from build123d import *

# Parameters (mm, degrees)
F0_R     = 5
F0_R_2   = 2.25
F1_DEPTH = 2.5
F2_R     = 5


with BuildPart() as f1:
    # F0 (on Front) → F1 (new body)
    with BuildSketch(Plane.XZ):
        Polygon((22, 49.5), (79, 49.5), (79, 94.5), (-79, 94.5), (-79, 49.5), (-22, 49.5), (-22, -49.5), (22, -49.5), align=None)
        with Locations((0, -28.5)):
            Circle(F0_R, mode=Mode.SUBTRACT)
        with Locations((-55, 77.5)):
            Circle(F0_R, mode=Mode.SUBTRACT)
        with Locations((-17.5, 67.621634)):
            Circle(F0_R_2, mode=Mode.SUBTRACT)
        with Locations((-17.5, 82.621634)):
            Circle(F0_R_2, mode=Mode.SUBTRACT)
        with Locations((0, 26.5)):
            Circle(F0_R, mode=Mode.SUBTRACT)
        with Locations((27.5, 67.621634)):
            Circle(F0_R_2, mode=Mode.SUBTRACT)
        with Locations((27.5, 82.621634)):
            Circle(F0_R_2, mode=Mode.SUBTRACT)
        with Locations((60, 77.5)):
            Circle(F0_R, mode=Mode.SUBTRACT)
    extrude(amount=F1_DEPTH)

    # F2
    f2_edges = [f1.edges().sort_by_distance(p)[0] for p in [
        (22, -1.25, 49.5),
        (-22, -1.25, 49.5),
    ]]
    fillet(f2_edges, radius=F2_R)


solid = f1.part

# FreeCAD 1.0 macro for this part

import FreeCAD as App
import Part
import Sketcher

V = App.Vector
Q = App.Units.Quantity


def edges_at(feature, points):
    """Names of the edges that pass closest to the given points."""
    edges = feature.Shape.Edges
    near = lambda p: min(range(len(edges)), key=lambda i: edges[i].distToShape(Part.Vertex(*p))[0])
    return sorted({f"Edge{near(p) + 1}" for p in points})


def add_polygon(sketch, points):
    """Adds a closed chain of lines whose ends are joined by coincident constraints."""
    first, n = sketch.GeometryCount, len(points)
    for a, b in zip(points, points[1:] + points[:1]):
        sketch.addGeometry(Part.LineSegment(App.Vector(*a, 0), App.Vector(*b, 0)), False)
    for i in range(n):
        sketch.addConstraint(Sketcher.Constraint("Coincident", first + i, 2, first + (i + 1) % n, 1))

doc = App.newDocument("Part")
params = doc.addObject("Spreadsheet::Sheet", "Params")
for row, (alias, value) in enumerate([
    ("sketch1_diameter", "10 mm"),
    ("sketch1_diameter2", "4.5 mm"),
    ("sketch1_width", "57 mm"),
    ("sketch1_width2", "158 mm"),
    ("sketch1_height", "45 mm"),
    ("pad1_length", "2.5 mm"),
    ("fillet_radius", "5 mm"),
], start=1):
    params.set(f"A{row}", alias)
    params.set(f"B{row}", "=" + value)
    params.setAlias(f"B{row}", alias)

body = doc.addObject("PartDesign::Body", "Body")

# Sketch on XZ plane
sketch1 = body.newObject("Sketcher::SketchObject", "Sketch")
sketch1.AttachmentSupport = (doc.getObject("XZ_Plane"), [""])
sketch1.MapMode = "FlatFace"
add_polygon(sketch1, [(22, 49.5), (79, 49.5), (79, 94.5), (-79, 94.5), (-79, 49.5), (-22, 49.5), (-22, -49.5), (22, -49.5)])  # lines 0-7
sketch1.addGeometry(Part.Circle(V(0, -28.5, 0), V(0, 0, 1), 5), False)  # 8
sketch1.addGeometry(Part.Circle(V(0, 26.5, 0), V(0, 0, 1), 5), False)  # 9
sketch1.addGeometry(Part.Circle(V(-55, 77.5, 0), V(0, 0, 1), 5), False)  # 10
sketch1.addGeometry(Part.Circle(V(-17.5, 67.621634, 0), V(0, 0, 1), 2.25), False)  # 11
sketch1.addGeometry(Part.Circle(V(-17.5, 82.621634, 0), V(0, 0, 1), 2.25), False)  # 12
sketch1.addGeometry(Part.Circle(V(27.5, 67.621634, 0), V(0, 0, 1), 2.25), False)  # 13
sketch1.addGeometry(Part.Circle(V(27.5, 82.621634, 0), V(0, 0, 1), 2.25), False)  # 14
sketch1.addGeometry(Part.Circle(V(60, 77.5, 0), V(0, 0, 1), 5), False)  # 15
sketch1.addConstraint(Sketcher.Constraint("Horizontal", 0))
sketch1.addConstraint(Sketcher.Constraint("Vertical", 1))
sketch1.addConstraint(Sketcher.Constraint("Horizontal", 2))
sketch1.addConstraint(Sketcher.Constraint("Vertical", 3))
sketch1.addConstraint(Sketcher.Constraint("Horizontal", 4))
sketch1.addConstraint(Sketcher.Constraint("Vertical", 5))
sketch1.addConstraint(Sketcher.Constraint("Horizontal", 6))
sketch1.addConstraint(Sketcher.Constraint("Vertical", 7))
sketch1.addConstraint(Sketcher.Constraint("Equal", 8, 9))
sketch1.addConstraint(Sketcher.Constraint("Equal", 9, 10))
sketch1.addConstraint(Sketcher.Constraint("Equal", 11, 12))
sketch1.addConstraint(Sketcher.Constraint("Equal", 12, 13))
sketch1.addConstraint(Sketcher.Constraint("Equal", 13, 14))
sketch1.addConstraint(Sketcher.Constraint("Equal", 10, 15))
sketch1.addConstraint(Sketcher.Constraint("Symmetric", 4, 2, 6, 2, -1, 1))
sketch1.addConstraint(Sketcher.Constraint("Symmetric", 0, 2, 3, 2, -2))
sketch1.addConstraint(Sketcher.Constraint("PointOnObject", 8, 3, -2))
sketch1.addConstraint(Sketcher.Constraint("PointOnObject", 9, 3, -2))
sketch1.addConstraint(Sketcher.Constraint("Horizontal", 11, 3, 13, 3))
sketch1.addConstraint(Sketcher.Constraint("Horizontal", 12, 3, 14, 3))
sketch1.addConstraint(Sketcher.Constraint("Horizontal", 10, 3, 15, 3))
sketch1.addConstraint(Sketcher.Constraint("Vertical", 11, 3, 12, 3))
sketch1.addConstraint(Sketcher.Constraint("Vertical", 13, 3, 14, 3))
sketch1.addConstraint(Sketcher.Constraint("Diameter", 8, Q("10 mm")))
sketch1.addConstraint(Sketcher.Constraint("Diameter", 11, Q("4.5 mm")))
sketch1.addConstraint(Sketcher.Constraint("DistanceX", 0, 1, 0, 2, Q("57 mm")))
sketch1.addConstraint(Sketcher.Constraint("DistanceX", 2, 2, 2, 1, Q("158 mm")))
sketch1.addConstraint(Sketcher.Constraint("DistanceY", 1, 1, 1, 2, Q("45 mm")))
sketch1.addConstraint(Sketcher.Constraint("DistanceY", 5, 2, 5, 1, Q("99 mm")))
sketch1.addConstraint(Sketcher.Constraint("DistanceX", 10, 3, -1, 1, Q("55 mm")))
sketch1.addConstraint(Sketcher.Constraint("DistanceX", -1, 1, 15, 3, Q("60 mm")))
sketch1.addConstraint(Sketcher.Constraint("DistanceY", 8, 3, 9, 3, Q("55 mm")))
sketch1.addConstraint(Sketcher.Constraint("DistanceY", 9, 3, 10, 3, Q("51 mm")))
sketch1.addConstraint(Sketcher.Constraint("DistanceY", 11, 3, 12, 3, Q("15 mm")))
sketch1.addConstraint(Sketcher.Constraint("DistanceX", 11, 3, 13, 3, Q("45 mm")))
sketch1.addConstraint(Sketcher.Constraint("DistanceY", 0, 2, 15, 3, Q("28 mm")))
sketch1.addConstraint(Sketcher.Constraint("DistanceX", 11, 3, -1, 1, Q("17.5 mm")))
sketch1.addConstraint(Sketcher.Constraint("DistanceY", -1, 1, 11, 3, Q("67.621634 mm")))
sketch1.setExpression("Constraints[31]", "Params.sketch1_diameter")
sketch1.setExpression("Constraints[32]", "Params.sketch1_diameter2")
sketch1.setExpression("Constraints[33]", "Params.sketch1_width")
sketch1.setExpression("Constraints[34]", "Params.sketch1_width2")
sketch1.setExpression("Constraints[35]", "Params.sketch1_height")
pad1 = body.newObject("PartDesign::Pad", "Pad")
pad1.Profile = sketch1
pad1.setExpression("Length", "Params.pad1_length")
doc.recompute()

fillet = body.newObject("PartDesign::Fillet", "Fillet")
fillet.Base = (pad1, edges_at(pad1, [(22, -1.25, 49.5), (-22, -1.25, 49.5)]))
fillet.setExpression("Radius", "Params.fillet_radius")

doc.recompute()
